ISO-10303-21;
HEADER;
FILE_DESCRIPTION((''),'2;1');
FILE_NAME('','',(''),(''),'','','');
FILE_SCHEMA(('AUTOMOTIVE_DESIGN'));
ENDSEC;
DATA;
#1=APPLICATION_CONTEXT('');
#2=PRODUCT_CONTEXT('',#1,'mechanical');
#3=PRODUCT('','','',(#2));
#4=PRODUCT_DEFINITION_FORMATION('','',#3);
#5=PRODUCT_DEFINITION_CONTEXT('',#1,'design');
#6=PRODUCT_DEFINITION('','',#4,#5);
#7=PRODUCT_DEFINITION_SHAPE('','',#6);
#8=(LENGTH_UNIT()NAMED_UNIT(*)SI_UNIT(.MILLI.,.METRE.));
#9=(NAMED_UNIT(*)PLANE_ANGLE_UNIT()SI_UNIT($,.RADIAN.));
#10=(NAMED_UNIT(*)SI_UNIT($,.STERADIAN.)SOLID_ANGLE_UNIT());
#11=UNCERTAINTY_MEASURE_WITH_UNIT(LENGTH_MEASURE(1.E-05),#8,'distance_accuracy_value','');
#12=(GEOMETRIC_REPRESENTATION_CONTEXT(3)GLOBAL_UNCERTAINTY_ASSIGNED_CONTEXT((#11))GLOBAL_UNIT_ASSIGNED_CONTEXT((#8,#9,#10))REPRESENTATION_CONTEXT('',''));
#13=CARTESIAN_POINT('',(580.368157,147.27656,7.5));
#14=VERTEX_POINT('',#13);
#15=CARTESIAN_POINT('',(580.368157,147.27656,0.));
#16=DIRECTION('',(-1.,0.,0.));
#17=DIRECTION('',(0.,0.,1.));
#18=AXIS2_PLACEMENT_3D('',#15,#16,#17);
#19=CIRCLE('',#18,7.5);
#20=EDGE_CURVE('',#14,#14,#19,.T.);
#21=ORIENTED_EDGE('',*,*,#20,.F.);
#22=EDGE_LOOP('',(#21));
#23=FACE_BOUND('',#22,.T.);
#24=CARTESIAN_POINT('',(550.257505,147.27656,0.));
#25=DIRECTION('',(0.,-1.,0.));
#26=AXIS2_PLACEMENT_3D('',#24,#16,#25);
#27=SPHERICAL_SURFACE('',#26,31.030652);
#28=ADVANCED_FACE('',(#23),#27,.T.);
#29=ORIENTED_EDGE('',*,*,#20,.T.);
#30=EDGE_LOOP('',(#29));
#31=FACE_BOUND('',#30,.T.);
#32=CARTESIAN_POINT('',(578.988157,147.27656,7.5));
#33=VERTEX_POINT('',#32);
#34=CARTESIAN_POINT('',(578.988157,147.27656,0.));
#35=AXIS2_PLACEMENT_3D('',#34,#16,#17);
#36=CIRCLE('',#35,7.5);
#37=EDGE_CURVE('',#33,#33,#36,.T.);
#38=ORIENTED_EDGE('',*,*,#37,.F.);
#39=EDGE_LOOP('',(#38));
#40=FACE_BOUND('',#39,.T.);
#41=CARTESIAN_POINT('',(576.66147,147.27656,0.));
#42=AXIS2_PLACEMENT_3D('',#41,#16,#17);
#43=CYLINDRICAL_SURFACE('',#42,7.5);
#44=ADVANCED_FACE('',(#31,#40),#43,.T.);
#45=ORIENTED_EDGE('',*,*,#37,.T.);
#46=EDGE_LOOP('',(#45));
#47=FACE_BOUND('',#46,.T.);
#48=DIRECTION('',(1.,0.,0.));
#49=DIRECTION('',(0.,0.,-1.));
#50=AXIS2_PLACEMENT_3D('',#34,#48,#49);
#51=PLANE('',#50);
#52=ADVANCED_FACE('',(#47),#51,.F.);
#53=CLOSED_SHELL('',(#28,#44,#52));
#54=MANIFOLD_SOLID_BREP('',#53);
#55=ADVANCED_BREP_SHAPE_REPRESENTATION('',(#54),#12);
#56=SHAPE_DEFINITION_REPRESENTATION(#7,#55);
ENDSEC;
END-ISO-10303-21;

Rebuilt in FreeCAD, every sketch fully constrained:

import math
import FreeCAD as App
import Part
import Sketcher

V = App.Vector
Q = App.Units.Quantity

doc = App.newDocument("Part")
params = doc.addObject("Spreadsheet::Sheet", "Params")
for row, (alias, value) in enumerate([
    ("sketch1_width", "2.3 mm"),
    ("sketch1_height", "7.5 mm"),
    ("sketch1_width2", "1.38 mm"),
    ("revolution_angle", "360 deg"),
], start=1):
    params.set(f"A{row}", alias)
    params.set(f"B{row}", "=" + value)
    params.setAlias(f"B{row}", alias)

body = doc.addObject("PartDesign::Body", "Body")

# Sketch on XY plane
sketch1 = body.newObject("Sketcher::SketchObject", "Sketch")
sketch1.AttachmentSupport = (doc.getObject("XY_Plane"), [""])
sketch1.MapMode = "FlatFace"
sketch1.addGeometry([
    Part.LineSegment(V(579, 154.8, 0), V(579, 147.3, 0)),
    Part.LineSegment(V(579, 147.3, 0), V(581.3, 147.3, 0)),
    Part.ArcOfCircle(Part.Circle(V(550.3, 147.3, 0), V(0, 0, 1), 31), math.radians(0), math.radians(13.99)),
    Part.LineSegment(V(580.4, 154.8, 0), V(579, 154.8, 0)),
], False)
sketch1.addGeometry(Part.LineSegment(V(550.3, 147.3, 0), V(581.3, 147.3, 0)), True)  # axis
sketch1.addConstraint([
    Sketcher.Constraint("Coincident", 0, 2, 1, 1),
    Sketcher.Constraint("Coincident", 1, 2, 2, 1),
    Sketcher.Constraint("Coincident", 2, 2, 3, 1),
    Sketcher.Constraint("Coincident", 3, 2, 0, 1),
    Sketcher.Constraint("Vertical", 0),
    Sketcher.Constraint("Horizontal", 1),
    Sketcher.Constraint("Horizontal", 3),
    Sketcher.Constraint("Horizontal", 4),
    Sketcher.Constraint("Coincident", 4, 1, 2, 3),
    Sketcher.Constraint("Coincident", 4, 2, 1, 2),
    Sketcher.Constraint("DistanceX", 1, 1, 1, 2, Q("2.3 mm")),
    Sketcher.Constraint("DistanceY", 0, 2, 0, 1, Q("7.5 mm")),
    Sketcher.Constraint("DistanceX", 3, 2, 3, 1, Q("1.38 mm")),
    Sketcher.Constraint("DistanceY", -1, 1, 2, 3, Q("147.27656 mm")),
    Sketcher.Constraint("DistanceX", -1, 1, 2, 3, Q("550.257504 mm")),
])
sketch1.setExpression("Constraints[10]", "Params.sketch1_width")
sketch1.setExpression("Constraints[11]", "Params.sketch1_height")
sketch1.setExpression("Constraints[12]", "Params.sketch1_width2")
revolution = body.newObject("PartDesign::Revolution", "Revolution")
revolution.Profile = sketch1
revolution.ReferenceAxis = (sketch1, ["Axis0"])
revolution.setExpression("Angle", "Params.revolution_angle")

doc.recompute()
